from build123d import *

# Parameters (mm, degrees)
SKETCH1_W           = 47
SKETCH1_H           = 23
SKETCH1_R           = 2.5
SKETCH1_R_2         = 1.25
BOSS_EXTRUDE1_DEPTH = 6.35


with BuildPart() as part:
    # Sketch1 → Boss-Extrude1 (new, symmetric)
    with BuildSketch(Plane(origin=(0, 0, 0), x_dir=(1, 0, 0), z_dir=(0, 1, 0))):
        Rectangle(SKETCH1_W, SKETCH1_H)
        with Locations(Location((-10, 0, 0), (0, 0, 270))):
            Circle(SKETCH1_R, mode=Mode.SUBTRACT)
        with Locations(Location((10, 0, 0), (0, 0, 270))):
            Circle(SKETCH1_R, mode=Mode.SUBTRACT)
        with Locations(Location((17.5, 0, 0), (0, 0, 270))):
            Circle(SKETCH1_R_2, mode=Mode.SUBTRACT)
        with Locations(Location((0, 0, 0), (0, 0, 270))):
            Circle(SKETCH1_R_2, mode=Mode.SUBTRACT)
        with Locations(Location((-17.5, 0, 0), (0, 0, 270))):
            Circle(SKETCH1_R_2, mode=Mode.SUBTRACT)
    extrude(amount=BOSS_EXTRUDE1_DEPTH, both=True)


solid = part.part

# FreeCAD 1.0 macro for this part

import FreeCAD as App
import Part
import Sketcher

V = App.Vector
Q = App.Units.Quantity

doc = App.newDocument("Part")
body = doc.addObject("PartDesign::Body", "Body")

sketch1 = doc.addObject("Sketcher::SketchObject", "Sketch")
body.addObject(sketch1)
sketch1.AttachmentSupport = (doc.XZ_Plane, [""])
sketch1.MapMode = "FlatFace"
sketch1.addGeometry(Part.LineSegment(V(-23.5, -11.5, 0), V(-23.5, 11.5, 0)), False)
sketch1.addGeometry(Part.LineSegment(V(-23.5, 11.5, 0), V(23.5, 11.5, 0)), False)
sketch1.addGeometry(Part.LineSegment(V(23.5, 11.5, 0), V(23.5, -11.5, 0)), False)
sketch1.addGeometry(Part.LineSegment(V(23.5, -11.5, 0), V(-23.5, -11.5, 0)), False)
sketch1.addGeometry(Part.Circle(V(-17.5, 0, 0), V(0, 0, 1), 1.2), False)
sketch1.addGeometry(Part.Circle(V(-10, 0, 0), V(0, 0, 1), 2.5), False)
sketch1.addGeometry(Part.Circle(V(0, 0, 0), V(0, 0, 1), 1.2), False)
sketch1.addGeometry(Part.Circle(V(10, 0, 0), V(0, 0, 1), 2.5), False)
sketch1.addGeometry(Part.Circle(V(17.5, 0, 0), V(0, 0, 1), 1.2), False)
sketch1.addConstraint(Sketcher.Constraint("Coincident", 0, 2, 1, 1))
sketch1.addConstraint(Sketcher.Constraint("Coincident", 1, 2, 2, 1))
sketch1.addConstraint(Sketcher.Constraint("Coincident", 2, 2, 3, 1))
sketch1.addConstraint(Sketcher.Constraint("Coincident", 3, 2, 0, 1))
sketch1.addConstraint(Sketcher.Constraint("Vertical", 0))
sketch1.addConstraint(Sketcher.Constraint("Horizontal", 1))
sketch1.addConstraint(Sketcher.Constraint("Vertical", 2))
sketch1.addConstraint(Sketcher.Constraint("Horizontal", 3))
sketch1.addConstraint(Sketcher.Constraint("Coincident", 6, 3, -1, 1))
sketch1.addConstraint(Sketcher.Constraint("Equal", 4, 6))
sketch1.addConstraint(Sketcher.Constraint("Equal", 5, 7))
sketch1.addConstraint(Sketcher.Constraint("Equal", 6, 8))
sketch1.addConstraint(Sketcher.Constraint("Symmetric", 5, 3, 7, 3, -1, 1))
sketch1.addConstraint(Sketcher.Constraint("Symmetric", 4, 3, 8, 3, -1, 1))
sketch1.addConstraint(Sketcher.Constraint("Symmetric", 0, 2, 2, 2, -1, 1))
sketch1.addConstraint(Sketcher.Constraint("PointOnObject", 4, 3, -1))
sketch1.addConstraint(Sketcher.Constraint("PointOnObject", 5, 3, -1))
sketch1.addConstraint(Sketcher.Constraint("Diameter", 5, Q("5 mm")))
sketch1.addConstraint(Sketcher.Constraint("Diameter", 4, Q("2.5 mm")))
sketch1.addConstraint(Sketcher.Constraint("DistanceX", 1, 1, 1, 2, Q("47 mm")))
sketch1.addConstraint(Sketcher.Constraint("DistanceY", 0, 1, 0, 2, Q("23 mm")))
sketch1.addConstraint(Sketcher.Constraint("DistanceX", 5, 3, -1, 1, Q("10 mm")))
sketch1.addConstraint(Sketcher.Constraint("DistanceX", 4, 3, 8, 3, Q("35 mm")))
pad1 = doc.addObject("PartDesign::Pad", "Pad")
body.addObject(pad1)
pad1.Profile = sketch1
pad1.Length = 12.7
pad1.Midplane = True

doc.recompute()
